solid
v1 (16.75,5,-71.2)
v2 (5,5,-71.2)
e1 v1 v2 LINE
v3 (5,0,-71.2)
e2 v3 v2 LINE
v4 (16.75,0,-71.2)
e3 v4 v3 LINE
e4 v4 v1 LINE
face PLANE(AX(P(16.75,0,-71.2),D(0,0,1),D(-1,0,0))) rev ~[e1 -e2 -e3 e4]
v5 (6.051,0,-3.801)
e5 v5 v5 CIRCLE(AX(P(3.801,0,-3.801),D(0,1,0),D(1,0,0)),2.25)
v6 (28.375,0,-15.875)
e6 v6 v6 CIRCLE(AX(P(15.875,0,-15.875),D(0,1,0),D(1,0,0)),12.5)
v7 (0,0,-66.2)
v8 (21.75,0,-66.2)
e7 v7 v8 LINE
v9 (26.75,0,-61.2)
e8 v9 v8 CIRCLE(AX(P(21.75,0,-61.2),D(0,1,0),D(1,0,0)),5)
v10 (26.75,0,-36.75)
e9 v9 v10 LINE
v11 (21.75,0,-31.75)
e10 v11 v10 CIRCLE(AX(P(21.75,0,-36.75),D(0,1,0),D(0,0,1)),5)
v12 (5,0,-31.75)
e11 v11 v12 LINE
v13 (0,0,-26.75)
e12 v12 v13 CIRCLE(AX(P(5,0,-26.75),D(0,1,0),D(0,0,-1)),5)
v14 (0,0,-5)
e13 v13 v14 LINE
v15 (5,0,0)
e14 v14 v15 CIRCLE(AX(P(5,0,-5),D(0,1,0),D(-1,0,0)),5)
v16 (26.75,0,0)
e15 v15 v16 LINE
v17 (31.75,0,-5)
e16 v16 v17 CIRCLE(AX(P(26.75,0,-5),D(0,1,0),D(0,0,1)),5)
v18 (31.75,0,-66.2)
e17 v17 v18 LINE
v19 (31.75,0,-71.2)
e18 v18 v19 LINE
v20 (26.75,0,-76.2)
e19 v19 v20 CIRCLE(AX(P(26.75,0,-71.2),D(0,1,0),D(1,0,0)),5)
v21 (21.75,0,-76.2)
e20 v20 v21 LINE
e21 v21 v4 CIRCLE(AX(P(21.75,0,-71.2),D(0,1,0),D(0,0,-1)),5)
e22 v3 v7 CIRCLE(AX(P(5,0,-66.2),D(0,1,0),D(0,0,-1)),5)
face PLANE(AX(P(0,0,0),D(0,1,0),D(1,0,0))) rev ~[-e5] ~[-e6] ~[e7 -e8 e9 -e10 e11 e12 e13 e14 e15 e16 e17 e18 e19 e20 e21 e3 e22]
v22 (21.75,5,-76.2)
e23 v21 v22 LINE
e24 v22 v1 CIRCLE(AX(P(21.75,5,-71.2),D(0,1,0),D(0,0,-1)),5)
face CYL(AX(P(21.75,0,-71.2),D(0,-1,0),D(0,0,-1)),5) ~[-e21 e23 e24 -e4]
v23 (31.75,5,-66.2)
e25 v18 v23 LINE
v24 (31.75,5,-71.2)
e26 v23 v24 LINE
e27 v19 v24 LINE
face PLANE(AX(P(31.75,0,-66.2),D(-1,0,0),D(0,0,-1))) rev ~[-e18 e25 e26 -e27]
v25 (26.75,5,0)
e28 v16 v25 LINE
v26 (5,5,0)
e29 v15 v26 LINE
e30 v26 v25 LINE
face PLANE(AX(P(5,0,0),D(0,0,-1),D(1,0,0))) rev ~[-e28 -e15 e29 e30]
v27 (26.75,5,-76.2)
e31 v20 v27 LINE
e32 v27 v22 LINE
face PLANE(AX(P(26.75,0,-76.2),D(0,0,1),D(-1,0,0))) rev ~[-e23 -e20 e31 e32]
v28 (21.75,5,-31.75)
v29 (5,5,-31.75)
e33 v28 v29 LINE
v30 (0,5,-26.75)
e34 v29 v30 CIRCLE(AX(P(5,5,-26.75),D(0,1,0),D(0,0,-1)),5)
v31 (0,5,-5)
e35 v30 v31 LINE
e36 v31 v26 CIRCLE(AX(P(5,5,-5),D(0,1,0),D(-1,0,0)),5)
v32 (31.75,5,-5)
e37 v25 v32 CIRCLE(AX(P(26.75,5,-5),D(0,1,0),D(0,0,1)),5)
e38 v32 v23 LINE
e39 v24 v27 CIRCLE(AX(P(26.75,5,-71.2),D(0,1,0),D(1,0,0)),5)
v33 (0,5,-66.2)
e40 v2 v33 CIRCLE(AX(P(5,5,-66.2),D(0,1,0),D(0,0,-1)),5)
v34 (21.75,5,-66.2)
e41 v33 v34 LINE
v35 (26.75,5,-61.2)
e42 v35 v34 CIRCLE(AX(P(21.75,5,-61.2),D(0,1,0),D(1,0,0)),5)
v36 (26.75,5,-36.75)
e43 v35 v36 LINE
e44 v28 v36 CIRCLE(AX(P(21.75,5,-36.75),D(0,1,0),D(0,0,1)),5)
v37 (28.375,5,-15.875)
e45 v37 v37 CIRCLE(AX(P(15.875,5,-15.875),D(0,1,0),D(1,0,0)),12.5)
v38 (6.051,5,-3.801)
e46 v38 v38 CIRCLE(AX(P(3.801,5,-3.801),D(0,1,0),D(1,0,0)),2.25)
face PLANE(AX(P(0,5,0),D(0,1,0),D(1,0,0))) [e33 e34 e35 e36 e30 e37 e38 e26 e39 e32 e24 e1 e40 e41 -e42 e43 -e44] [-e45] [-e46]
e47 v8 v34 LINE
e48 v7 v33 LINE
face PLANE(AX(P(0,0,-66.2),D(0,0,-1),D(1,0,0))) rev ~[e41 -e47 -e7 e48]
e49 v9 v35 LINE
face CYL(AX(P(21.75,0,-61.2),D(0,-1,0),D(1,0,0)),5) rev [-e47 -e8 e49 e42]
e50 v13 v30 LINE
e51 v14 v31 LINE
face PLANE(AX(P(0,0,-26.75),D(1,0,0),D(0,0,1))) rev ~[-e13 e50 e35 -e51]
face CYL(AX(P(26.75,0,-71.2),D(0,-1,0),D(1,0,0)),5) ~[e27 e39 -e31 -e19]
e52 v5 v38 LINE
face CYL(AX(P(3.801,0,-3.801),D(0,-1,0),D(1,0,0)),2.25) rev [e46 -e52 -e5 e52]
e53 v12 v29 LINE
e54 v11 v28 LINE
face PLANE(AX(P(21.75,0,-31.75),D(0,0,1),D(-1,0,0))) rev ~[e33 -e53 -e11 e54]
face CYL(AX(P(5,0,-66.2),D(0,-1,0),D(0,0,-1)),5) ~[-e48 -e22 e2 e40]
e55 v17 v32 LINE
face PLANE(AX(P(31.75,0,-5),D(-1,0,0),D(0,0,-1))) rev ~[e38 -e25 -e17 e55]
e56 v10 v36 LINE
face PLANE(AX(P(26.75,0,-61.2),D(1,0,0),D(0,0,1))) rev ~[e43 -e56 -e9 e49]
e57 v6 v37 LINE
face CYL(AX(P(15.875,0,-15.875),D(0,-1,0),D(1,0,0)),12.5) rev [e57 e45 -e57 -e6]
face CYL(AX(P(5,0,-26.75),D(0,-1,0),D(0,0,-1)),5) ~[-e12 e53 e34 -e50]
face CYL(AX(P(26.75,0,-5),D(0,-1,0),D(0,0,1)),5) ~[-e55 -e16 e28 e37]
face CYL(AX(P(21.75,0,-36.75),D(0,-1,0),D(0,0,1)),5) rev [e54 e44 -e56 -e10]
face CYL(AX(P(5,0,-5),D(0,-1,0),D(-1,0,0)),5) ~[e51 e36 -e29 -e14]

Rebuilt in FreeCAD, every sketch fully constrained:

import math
import FreeCAD as App
import Part
import Sketcher

V = App.Vector
Q = App.Units.Quantity

doc = App.newDocument("Part")
body = doc.addObject("PartDesign::Body", "Body")

sketch1 = body.newObject("Sketcher::SketchObject", "Sketch")
sketch1.AttachmentSupport = (doc.getObject("XZ_Plane"), [""])
sketch1.MapMode = "FlatFace"
sketch1.addGeometry([
    Part.ArcOfCircle(Part.Circle(V(5, -5, 0), V(0, 0, 1), 5), math.radians(90), math.radians(180)),
    Part.LineSegment(V(5, 0, 0), V(26.8, 0, 0)),
    Part.ArcOfCircle(Part.Circle(V(26.8, -5, 0), V(0, 0, 1), 5), math.radians(0), math.radians(90)),
    Part.LineSegment(V(31.8, -5, 0), V(31.8, -71.2, 0)),
    Part.ArcOfCircle(Part.Circle(V(26.8, -71.2, 0), V(0, 0, 1), 5), math.radians(-90), math.radians(0)),
    Part.LineSegment(V(26.8, -76.2, 0), V(21.8, -76.2, 0)),
    Part.ArcOfCircle(Part.Circle(V(21.8, -71.2, 0), V(0, 0, 1), 5), math.radians(180), math.radians(270)),
    Part.LineSegment(V(16.8, -71.2, 0), V(5, -71.2, 0)),
    Part.ArcOfCircle(Part.Circle(V(5, -66.2, 0), V(0, 0, 1), 5), math.radians(180), math.radians(270)),
    Part.LineSegment(V(0, -66.2, 0), V(21.8, -66.2, 0)),
    Part.ArcOfCircle(Part.Circle(V(21.8, -61.2, 0), V(0, 0, 1), 5), math.radians(-90), math.radians(0)),
    Part.LineSegment(V(26.8, -61.2, 0), V(26.8, -36.8, 0)),
    Part.ArcOfCircle(Part.Circle(V(21.8, -36.8, 0), V(0, 0, 1), 5), math.radians(0), math.radians(90)),
    Part.LineSegment(V(21.8, -31.8, 0), V(5, -31.8, 0)),
    Part.ArcOfCircle(Part.Circle(V(5, -26.8, 0), V(0, 0, 1), 5), math.radians(180), math.radians(270)),
    Part.LineSegment(V(0, -26.8, 0), V(0, -5, 0)),
    Part.Circle(V(3.8, -3.8, 0), V(0, 0, 1), 2.2),
    Part.Circle(V(15.9, -15.9, 0), V(0, 0, 1), 12.5),
], False)
sketch1.addConstraint([
    Sketcher.Constraint("Tangent", 0, 1, 1, 1),
    Sketcher.Constraint("Tangent", 1, 2, 2, 2),
    Sketcher.Constraint("Tangent", 2, 1, 3, 1),
    Sketcher.Constraint("Tangent", 3, 2, 4, 2),
    Sketcher.Constraint("Tangent", 4, 1, 5, 1),
    Sketcher.Constraint("Tangent", 5, 2, 6, 2),
    Sketcher.Constraint("Coincident", 6, 1, 7, 1),
    Sketcher.Constraint("Tangent", 7, 2, 8, 2),
    Sketcher.Constraint("Coincident", 8, 1, 9, 1),
    Sketcher.Constraint("Tangent", 9, 2, 10, 1),
    Sketcher.Constraint("Tangent", 10, 2, 11, 1),
    Sketcher.Constraint("Tangent", 11, 2, 12, 1),
    Sketcher.Constraint("Tangent", 12, 2, 13, 1),
    Sketcher.Constraint("Tangent", 13, 2, 14, 2),
    Sketcher.Constraint("Tangent", 14, 1, 15, 1),
    Sketcher.Constraint("Tangent", 15, 2, 0, 2),
    Sketcher.Constraint("Horizontal", 1),
    Sketcher.Constraint("Vertical", 3),
    Sketcher.Constraint("Horizontal", 5),
    Sketcher.Constraint("Horizontal", 7),
    Sketcher.Constraint("Horizontal", 9),
    Sketcher.Constraint("Vertical", 11),
    Sketcher.Constraint("Horizontal", 13),
    Sketcher.Constraint("Vertical", 15),
    Sketcher.Constraint("Equal", 0, 2),
    Sketcher.Constraint("Equal", 2, 4),
    Sketcher.Constraint("Equal", 4, 6),
    Sketcher.Constraint("Equal", 6, 8),
    Sketcher.Constraint("Equal", 8, 10),
    Sketcher.Constraint("Equal", 10, 12),
    Sketcher.Constraint("Equal", 12, 14),
    Sketcher.Constraint("PointOnObject", 0, 1, -1),
    Sketcher.Constraint("PointOnObject", 8, 1, -2),
    Sketcher.Constraint("PointOnObject", 14, 1, -2),
    Sketcher.Constraint("Horizontal", 3, 2, 6, 1),
    Sketcher.Constraint("Vertical", 6, 3, 10, 3),
    Sketcher.Constraint("Vertical", 4, 1, 10, 2),
    Sketcher.Constraint("Equal", 9, 15),
    Sketcher.Constraint("Diameter", 17, Q("25 mm")),
    Sketcher.Constraint("Radius", 0, Q("5 mm")),
    Sketcher.Constraint("Diameter", 16, Q("4.5 mm")),
    Sketcher.Constraint("DistanceY", 3, 2, 3, 1, Q("66.2 mm")),
    Sketcher.Constraint("DistanceY", 6, 3, 10, 3, Q("10 mm")),
    Sketcher.Constraint("DistanceX", 1, 1, 1, 2, Q("21.75 mm")),
    Sketcher.Constraint("DistanceX", -1, 1, 16, 3, Q("3.801 mm")),
    Sketcher.Constraint("DistanceY", 16, 3, -1, 1, Q("3.801 mm")),
    Sketcher.Constraint("DistanceX", -1, 1, 17, 3, Q("15.875 mm")),
    Sketcher.Constraint("DistanceY", 17, 3, -1, 1, Q("15.875 mm")),
])
pad1 = body.newObject("PartDesign::Pad", "Pad")
pad1.Profile = sketch1
pad1.Length = 5
pad1.Reversed = True

doc.recompute()
